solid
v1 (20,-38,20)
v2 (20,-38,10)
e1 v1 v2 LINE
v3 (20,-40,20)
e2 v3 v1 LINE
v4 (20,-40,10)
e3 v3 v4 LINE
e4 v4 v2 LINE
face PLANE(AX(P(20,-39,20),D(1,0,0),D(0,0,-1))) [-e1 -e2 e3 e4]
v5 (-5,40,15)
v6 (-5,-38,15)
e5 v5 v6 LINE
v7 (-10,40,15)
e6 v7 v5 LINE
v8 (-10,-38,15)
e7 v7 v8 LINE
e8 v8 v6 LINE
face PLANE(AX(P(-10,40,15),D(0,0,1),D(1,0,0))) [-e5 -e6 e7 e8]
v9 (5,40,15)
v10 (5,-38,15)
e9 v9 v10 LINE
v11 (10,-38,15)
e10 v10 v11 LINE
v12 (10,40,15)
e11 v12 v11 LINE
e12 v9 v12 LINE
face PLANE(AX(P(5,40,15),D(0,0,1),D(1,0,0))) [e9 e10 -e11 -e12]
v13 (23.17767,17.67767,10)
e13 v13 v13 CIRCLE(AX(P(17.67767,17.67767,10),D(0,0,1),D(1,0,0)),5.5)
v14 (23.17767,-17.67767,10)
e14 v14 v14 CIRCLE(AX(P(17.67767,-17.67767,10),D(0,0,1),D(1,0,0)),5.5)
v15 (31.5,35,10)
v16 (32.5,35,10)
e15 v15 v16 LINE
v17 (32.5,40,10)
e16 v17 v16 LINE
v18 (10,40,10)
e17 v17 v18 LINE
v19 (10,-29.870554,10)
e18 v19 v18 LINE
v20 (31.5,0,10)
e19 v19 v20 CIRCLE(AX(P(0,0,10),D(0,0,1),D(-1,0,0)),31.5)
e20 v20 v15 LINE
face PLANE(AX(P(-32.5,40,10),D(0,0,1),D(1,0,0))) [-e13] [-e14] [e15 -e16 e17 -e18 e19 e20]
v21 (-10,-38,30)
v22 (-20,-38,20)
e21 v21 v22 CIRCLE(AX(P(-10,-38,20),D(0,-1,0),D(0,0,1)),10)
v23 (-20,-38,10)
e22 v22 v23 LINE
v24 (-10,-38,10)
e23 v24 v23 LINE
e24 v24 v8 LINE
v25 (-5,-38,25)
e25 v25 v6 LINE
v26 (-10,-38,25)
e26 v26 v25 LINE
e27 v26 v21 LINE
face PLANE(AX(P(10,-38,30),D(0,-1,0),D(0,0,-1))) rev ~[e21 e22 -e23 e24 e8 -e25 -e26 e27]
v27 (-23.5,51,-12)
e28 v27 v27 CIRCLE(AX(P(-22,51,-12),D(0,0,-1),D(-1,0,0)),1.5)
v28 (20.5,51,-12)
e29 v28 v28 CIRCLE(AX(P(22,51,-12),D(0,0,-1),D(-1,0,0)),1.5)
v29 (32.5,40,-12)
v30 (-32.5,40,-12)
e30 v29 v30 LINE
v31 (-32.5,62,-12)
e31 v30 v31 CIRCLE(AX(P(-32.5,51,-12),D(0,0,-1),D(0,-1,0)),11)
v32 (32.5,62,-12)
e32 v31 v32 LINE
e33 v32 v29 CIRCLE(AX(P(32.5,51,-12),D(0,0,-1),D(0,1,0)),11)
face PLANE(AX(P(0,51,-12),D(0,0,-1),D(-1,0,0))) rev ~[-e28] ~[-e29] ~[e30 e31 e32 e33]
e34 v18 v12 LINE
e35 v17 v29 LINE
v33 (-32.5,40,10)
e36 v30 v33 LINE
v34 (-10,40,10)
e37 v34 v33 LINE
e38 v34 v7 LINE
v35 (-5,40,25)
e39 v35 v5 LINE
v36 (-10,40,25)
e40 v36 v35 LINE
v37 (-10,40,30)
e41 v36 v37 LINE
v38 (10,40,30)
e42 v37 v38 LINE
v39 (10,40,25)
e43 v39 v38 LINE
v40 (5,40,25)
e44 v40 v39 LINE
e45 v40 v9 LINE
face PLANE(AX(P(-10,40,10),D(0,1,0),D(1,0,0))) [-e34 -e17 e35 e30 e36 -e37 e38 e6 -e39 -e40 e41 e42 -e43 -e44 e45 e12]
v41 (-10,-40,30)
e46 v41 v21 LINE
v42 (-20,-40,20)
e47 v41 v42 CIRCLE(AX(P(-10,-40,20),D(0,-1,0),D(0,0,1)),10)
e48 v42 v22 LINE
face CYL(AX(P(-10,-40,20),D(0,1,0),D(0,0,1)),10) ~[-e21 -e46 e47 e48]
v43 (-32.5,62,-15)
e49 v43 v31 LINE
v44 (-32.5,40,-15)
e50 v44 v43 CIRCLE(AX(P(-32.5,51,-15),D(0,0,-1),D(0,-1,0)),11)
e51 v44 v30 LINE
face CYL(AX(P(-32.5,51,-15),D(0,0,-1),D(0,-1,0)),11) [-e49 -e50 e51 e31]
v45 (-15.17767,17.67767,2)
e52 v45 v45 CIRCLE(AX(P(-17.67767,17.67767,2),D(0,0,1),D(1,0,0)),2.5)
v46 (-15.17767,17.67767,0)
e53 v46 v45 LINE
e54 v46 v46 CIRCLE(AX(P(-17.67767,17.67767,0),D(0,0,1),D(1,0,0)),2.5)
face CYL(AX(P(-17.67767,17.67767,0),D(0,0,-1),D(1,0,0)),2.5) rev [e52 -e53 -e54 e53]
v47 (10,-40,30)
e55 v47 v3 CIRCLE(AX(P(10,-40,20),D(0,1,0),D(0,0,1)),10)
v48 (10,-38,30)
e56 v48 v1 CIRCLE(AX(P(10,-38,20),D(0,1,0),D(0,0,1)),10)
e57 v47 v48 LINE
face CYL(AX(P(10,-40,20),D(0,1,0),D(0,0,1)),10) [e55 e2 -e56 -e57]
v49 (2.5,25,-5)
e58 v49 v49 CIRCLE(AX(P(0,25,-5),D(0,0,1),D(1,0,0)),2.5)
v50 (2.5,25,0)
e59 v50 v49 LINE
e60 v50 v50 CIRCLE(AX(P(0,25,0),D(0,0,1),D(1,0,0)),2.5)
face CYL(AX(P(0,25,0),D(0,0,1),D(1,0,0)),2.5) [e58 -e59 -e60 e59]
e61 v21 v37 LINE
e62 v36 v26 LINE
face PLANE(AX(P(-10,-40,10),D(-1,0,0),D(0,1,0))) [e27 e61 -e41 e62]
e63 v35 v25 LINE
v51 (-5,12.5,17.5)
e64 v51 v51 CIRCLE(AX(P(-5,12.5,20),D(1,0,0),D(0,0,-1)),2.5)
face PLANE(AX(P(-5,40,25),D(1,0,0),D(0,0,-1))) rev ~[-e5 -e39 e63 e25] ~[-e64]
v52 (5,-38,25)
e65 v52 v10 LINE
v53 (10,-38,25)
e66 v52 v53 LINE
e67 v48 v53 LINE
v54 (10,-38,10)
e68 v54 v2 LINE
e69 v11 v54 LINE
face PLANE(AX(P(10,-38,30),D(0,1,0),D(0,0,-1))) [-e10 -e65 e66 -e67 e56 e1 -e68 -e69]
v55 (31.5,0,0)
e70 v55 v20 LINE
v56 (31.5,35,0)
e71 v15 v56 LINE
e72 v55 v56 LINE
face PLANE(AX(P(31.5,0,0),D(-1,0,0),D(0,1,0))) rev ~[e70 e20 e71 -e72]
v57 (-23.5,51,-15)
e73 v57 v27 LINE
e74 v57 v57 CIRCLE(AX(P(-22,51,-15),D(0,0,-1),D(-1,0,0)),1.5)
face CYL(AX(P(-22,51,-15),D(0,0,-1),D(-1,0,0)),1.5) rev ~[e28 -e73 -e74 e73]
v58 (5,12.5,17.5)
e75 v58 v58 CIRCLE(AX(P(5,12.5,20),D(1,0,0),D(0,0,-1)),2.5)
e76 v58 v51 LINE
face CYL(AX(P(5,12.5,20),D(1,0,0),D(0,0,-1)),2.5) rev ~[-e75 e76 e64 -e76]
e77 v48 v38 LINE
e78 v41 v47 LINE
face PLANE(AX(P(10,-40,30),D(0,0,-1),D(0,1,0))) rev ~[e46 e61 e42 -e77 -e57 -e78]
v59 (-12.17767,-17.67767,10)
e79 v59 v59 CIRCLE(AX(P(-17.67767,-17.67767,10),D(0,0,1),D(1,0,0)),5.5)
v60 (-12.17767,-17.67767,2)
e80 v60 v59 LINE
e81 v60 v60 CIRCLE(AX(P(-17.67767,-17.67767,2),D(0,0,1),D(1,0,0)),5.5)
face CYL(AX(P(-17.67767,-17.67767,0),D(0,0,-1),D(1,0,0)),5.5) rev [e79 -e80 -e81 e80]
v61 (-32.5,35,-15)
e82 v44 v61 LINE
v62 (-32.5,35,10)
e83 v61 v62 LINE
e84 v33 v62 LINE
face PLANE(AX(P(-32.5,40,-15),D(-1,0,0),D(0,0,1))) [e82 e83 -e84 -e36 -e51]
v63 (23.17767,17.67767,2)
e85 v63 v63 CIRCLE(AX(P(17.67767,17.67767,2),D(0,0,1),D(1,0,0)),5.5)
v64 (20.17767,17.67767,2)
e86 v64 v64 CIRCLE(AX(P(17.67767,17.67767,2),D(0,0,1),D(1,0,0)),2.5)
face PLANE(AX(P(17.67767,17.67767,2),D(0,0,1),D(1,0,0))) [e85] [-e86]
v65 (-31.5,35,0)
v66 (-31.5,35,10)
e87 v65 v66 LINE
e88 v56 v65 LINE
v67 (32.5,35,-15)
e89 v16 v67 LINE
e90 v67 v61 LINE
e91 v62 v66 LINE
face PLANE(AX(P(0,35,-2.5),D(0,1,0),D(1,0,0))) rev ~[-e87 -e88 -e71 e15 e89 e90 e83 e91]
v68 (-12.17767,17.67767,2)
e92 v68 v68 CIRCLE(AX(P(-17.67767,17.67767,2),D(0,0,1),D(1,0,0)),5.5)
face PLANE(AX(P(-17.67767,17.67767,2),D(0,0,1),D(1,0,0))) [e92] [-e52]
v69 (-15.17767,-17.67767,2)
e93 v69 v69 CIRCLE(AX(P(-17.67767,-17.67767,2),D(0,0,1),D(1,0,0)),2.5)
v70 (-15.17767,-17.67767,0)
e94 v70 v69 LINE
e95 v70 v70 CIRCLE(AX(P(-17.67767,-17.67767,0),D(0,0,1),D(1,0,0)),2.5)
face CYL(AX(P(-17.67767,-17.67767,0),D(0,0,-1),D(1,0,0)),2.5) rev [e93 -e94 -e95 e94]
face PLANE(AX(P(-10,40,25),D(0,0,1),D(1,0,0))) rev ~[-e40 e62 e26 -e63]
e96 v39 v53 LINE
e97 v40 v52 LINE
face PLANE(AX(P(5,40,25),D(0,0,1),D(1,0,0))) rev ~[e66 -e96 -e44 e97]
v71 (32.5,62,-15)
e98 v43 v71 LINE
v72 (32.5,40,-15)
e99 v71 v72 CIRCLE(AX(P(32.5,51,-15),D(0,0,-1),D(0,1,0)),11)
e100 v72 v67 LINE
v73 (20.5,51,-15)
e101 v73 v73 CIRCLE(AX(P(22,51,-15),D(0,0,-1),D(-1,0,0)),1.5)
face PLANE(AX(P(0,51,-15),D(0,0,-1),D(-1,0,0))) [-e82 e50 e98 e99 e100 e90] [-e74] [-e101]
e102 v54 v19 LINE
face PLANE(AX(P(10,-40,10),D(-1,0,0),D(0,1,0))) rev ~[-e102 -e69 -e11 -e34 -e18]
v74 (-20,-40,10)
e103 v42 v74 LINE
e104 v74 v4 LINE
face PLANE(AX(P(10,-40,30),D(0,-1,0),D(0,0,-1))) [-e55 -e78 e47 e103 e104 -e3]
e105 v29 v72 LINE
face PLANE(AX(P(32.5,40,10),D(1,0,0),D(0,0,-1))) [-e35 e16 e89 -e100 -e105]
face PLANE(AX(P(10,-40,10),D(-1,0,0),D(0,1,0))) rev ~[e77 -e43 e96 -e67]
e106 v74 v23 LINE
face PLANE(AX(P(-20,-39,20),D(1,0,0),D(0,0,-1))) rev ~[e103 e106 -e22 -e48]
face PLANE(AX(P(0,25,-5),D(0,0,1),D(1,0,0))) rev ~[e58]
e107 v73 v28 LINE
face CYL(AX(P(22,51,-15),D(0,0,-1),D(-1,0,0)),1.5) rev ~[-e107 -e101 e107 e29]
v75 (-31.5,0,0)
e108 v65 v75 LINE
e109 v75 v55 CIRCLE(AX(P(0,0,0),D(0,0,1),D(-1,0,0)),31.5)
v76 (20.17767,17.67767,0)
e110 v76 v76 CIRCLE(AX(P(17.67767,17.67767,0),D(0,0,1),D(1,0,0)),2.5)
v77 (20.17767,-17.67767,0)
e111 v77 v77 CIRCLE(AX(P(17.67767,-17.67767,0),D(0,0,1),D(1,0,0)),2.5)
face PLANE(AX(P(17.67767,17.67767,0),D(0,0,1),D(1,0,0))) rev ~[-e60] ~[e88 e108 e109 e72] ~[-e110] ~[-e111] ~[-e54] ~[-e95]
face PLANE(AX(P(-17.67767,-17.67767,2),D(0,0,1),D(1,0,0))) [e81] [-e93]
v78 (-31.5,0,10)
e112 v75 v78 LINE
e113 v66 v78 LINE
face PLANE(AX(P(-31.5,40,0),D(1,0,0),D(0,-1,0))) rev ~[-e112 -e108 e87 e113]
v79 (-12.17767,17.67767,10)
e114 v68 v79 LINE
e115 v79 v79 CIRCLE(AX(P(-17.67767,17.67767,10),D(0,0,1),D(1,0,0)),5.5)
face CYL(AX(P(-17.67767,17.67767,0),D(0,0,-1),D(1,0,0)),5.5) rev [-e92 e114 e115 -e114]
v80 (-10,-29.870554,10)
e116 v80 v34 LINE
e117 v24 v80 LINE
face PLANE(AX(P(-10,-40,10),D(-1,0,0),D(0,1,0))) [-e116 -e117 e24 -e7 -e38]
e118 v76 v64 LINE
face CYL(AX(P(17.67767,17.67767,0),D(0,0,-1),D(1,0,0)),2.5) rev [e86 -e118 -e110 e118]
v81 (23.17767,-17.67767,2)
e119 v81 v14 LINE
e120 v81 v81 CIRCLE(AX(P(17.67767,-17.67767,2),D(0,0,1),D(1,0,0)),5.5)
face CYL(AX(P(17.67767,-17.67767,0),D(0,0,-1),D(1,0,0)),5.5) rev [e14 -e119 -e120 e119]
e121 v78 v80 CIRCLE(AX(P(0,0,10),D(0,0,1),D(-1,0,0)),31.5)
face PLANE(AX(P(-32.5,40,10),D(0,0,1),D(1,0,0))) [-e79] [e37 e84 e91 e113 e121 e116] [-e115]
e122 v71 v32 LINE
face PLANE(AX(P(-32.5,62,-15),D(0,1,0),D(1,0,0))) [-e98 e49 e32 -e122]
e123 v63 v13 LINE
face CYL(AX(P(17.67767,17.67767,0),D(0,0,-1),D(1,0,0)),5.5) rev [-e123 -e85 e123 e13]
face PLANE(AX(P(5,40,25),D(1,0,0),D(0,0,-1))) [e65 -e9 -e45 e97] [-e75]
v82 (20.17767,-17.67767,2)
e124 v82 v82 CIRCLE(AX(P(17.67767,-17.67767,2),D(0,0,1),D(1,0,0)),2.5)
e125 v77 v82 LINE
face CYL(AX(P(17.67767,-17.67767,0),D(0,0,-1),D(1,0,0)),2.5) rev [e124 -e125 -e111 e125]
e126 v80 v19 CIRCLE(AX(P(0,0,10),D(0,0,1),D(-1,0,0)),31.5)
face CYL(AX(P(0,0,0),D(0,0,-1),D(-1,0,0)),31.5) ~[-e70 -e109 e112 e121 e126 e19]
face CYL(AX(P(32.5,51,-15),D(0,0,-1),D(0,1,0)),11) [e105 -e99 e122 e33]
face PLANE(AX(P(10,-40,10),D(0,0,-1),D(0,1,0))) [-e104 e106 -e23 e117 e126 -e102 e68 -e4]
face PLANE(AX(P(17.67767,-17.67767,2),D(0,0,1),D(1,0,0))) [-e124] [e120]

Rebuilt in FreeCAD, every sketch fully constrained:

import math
import FreeCAD as App
import Part
import Sketcher


def edges_at(feature, points):
    """Names of the edges that pass closest to the given points."""
    edges = feature.Shape.Edges
    near = lambda p: min(range(len(edges)), key=lambda i: edges[i].distToShape(Part.Vertex(*p))[0])
    return sorted({f"Edge{near(p) + 1}" for p in points})


def add_polygon(sketch, points):
    """Adds a closed chain of lines whose ends are joined by coincident constraints."""
    first, n = sketch.GeometryCount, len(points)
    for a, b in zip(points, points[1:] + points[:1]):
        sketch.addGeometry(Part.LineSegment(App.Vector(*a, 0), App.Vector(*b, 0)), False)
    for i in range(n):
        sketch.addConstraint(Sketcher.Constraint("Coincident", first + i, 2, first + (i + 1) % n, 1))

doc = App.newDocument("Part")
body = doc.addObject("PartDesign::Body", "Body")

sketch1 = body.newObject("Sketcher::SketchObject", "Sketch")
sketch1.AttachmentSupport = (doc.getObject("XY_Plane"), [""])
sketch1.MapMode = "FlatFace"
sketch1.addGeometry(Part.LineSegment(App.Vector(31.5, 0, 0), App.Vector(31.5, 40, 0)), False)
sketch1.addGeometry(Part.LineSegment(App.Vector(31.5, 40, 0), App.Vector(-31.5, 40, 0)), False)
sketch1.addGeometry(Part.LineSegment(App.Vector(-31.5, 40, 0), App.Vector(-31.5, 0, 0)), False)
sketch1.addGeometry(Part.ArcOfCircle(Part.Circle(App.Vector(0, 0, 0), App.Vector(0, 0, 1), 31.5), math.radians(180), math.radians(360)), False)
sketch1.addGeometry(Part.Circle(App.Vector(-17.67767, -17.67767, 0), App.Vector(0, 0, 1), 5.5), False)
sketch1.addGeometry(Part.Circle(App.Vector(17.67767, -17.67767, 0), App.Vector(0, 0, 1), 5.5), False)
sketch1.addGeometry(Part.Circle(App.Vector(-17.67767, 17.67767, 0), App.Vector(0, 0, 1), 5.5), False)
sketch1.addGeometry(Part.Circle(App.Vector(17.67767, 17.67767, 0), App.Vector(0, 0, 1), 5.5), False)
sketch1.addConstraint(Sketcher.Constraint("Coincident", 0, 2, 1, 1))
sketch1.addConstraint(Sketcher.Constraint("Coincident", 1, 2, 2, 1))
sketch1.addConstraint(Sketcher.Constraint("Tangent", 2, 2, 3, 1))
sketch1.addConstraint(Sketcher.Constraint("Tangent", 3, 2, 0, 1))
sketch1.addConstraint(Sketcher.Constraint("Vertical", 0))
sketch1.addConstraint(Sketcher.Constraint("Horizontal", 1))
sketch1.addConstraint(Sketcher.Constraint("Vertical", 2))
sketch1.addConstraint(Sketcher.Constraint("Coincident", 3, 3, -1, 1))
sketch1.addConstraint(Sketcher.Constraint("Equal", 4, 5))
sketch1.addConstraint(Sketcher.Constraint("Equal", 5, 6))
sketch1.addConstraint(Sketcher.Constraint("Equal", 6, 7))
sketch1.addConstraint(Sketcher.Constraint("Symmetric", 5, 3, 6, 3, -1, 1))
sketch1.addConstraint(Sketcher.Constraint("Symmetric", 4, 3, 7, 3, -1, 1))
sketch1.addConstraint(Sketcher.Constraint("Symmetric", 4, 3, 5, 3, -2))
sketch1.addConstraint(Sketcher.Constraint("Diameter", 4, 11.0))
sketch1.addConstraint(Sketcher.Constraint("Radius", 3, 31.5))
sketch1.addConstraint(Sketcher.Constraint("DistanceY", 0, 1, 0, 2, 40.0))
sketch1.addConstraint(Sketcher.Constraint("DistanceX", 4, 3, -1, 1, 17.67767))
sketch1.addConstraint(Sketcher.Constraint("DistanceY", 4, 3, -1, 1, 17.67767))
pad1 = body.newObject("PartDesign::Pad", "Pad")
pad1.Profile = sketch1
pad1.Length = 10

sketch2 = body.newObject("Sketcher::SketchObject", "Sketch001")
sketch2.AttachmentSupport = (doc.getObject("XY_Plane"), [""])
sketch2.MapMode = "FlatFace"
sketch2.addGeometry(Part.Circle(App.Vector(17.67767, 17.67767, 0), App.Vector(0, 0, 1), 5.5), False)
sketch2.addGeometry(Part.Circle(App.Vector(17.67767, 17.67767, 0), App.Vector(0, 0, 1), 2.5), False)
sketch2.addGeometry(Part.Circle(App.Vector(17.67767, -17.67767, 0), App.Vector(0, 0, 1), 5.5), False)
sketch2.addGeometry(Part.Circle(App.Vector(17.67767, -17.67767, 0), App.Vector(0, 0, 1), 2.5), False)
sketch2.addGeometry(Part.Circle(App.Vector(-17.67767, -17.67767, 0), App.Vector(0, 0, 1), 5.5), False)
sketch2.addGeometry(Part.Circle(App.Vector(-17.67767, -17.67767, 0), App.Vector(0, 0, 1), 2.5), False)
sketch2.addGeometry(Part.Circle(App.Vector(-17.67767, 17.67767, 0), App.Vector(0, 0, 1), 5.5), False)
sketch2.addGeometry(Part.Circle(App.Vector(-17.67767, 17.67767, 0), App.Vector(0, 0, 1), 2.5), False)
sketch2.addConstraint(Sketcher.Constraint("Coincident", 1, 3, 0, 3))
sketch2.addConstraint(Sketcher.Constraint("Coincident", 3, 3, 2, 3))
sketch2.addConstraint(Sketcher.Constraint("Coincident", 5, 3, 4, 3))
sketch2.addConstraint(Sketcher.Constraint("Coincident", 7, 3, 6, 3))
sketch2.addConstraint(Sketcher.Constraint("Equal", 0, 2))
sketch2.addConstraint(Sketcher.Constraint("Equal", 1, 3))
sketch2.addConstraint(Sketcher.Constraint("Equal", 2, 4))
sketch2.addConstraint(Sketcher.Constraint("Equal", 3, 5))
sketch2.addConstraint(Sketcher.Constraint("Equal", 4, 6))
sketch2.addConstraint(Sketcher.Constraint("Equal", 5, 7))
sketch2.addConstraint(Sketcher.Constraint("Symmetric", 0, 3, 4, 3, -1, 1))
sketch2.addConstraint(Sketcher.Constraint("Symmetric", 2, 3, 6, 3, -1, 1))
sketch2.addConstraint(Sketcher.Constraint("Symmetric", 2, 3, 4, 3, -2))
sketch2.addConstraint(Sketcher.Constraint("Diameter", 0, 11.0))
sketch2.addConstraint(Sketcher.Constraint("Diameter", 1, 5.0))
sketch2.addConstraint(Sketcher.Constraint("DistanceX", -1, 1, 0, 3, 17.67767))
sketch2.addConstraint(Sketcher.Constraint("DistanceY", -1, 1, 0, 3, 17.67767))
pad2 = body.newObject("PartDesign::Pad", "Pad001")
pad2.Profile = sketch2
pad2.Length = 2

sketch3 = body.newObject("Sketcher::SketchObject", "Sketch002")
sketch3.AttachmentSupport = (doc.getObject("XY_Plane"), [""])
sketch3.MapMode = "FlatFace"
sketch3.addGeometry(Part.Circle(App.Vector(0, 25, 0), App.Vector(0, 0, 1), 2.5), False)
sketch3.addConstraint(Sketcher.Constraint("PointOnObject", 0, 3, -2))
sketch3.addConstraint(Sketcher.Constraint("Diameter", 0, 5.0))
sketch3.addConstraint(Sketcher.Constraint("DistanceY", -1, 1, 0, 3, 25.0))
pad3 = body.newObject("PartDesign::Pad", "Pad002")
pad3.Profile = sketch3
pad3.Length = 5
pad3.Reversed = True

sketch4 = body.newObject("Sketcher::SketchObject", "Sketch003")
sketch4.AttachmentSupport = (doc.getObject("XZ_Plane"), [""])
sketch4.MapMode = "FlatFace"
sketch4.AttachmentOffset = App.Placement(App.Vector(0, 0, -40), App.Rotation())
add_polygon(sketch4, [(-32.5, 10), (32.5, 10), (32.5, -15), (-32.5, -15)])
sketch4.addConstraint(Sketcher.Constraint("Horizontal", 0))
sketch4.addConstraint(Sketcher.Constraint("Vertical", 1))
sketch4.addConstraint(Sketcher.Constraint("Horizontal", 2))
sketch4.addConstraint(Sketcher.Constraint("Vertical", 3))
sketch4.addConstraint(Sketcher.Constraint("DistanceX", 0, 1, 0, 2, 65.0))
sketch4.addConstraint(Sketcher.Constraint("DistanceY", 1, 2, 1, 1, 25.0))
sketch4.addConstraint(Sketcher.Constraint("DistanceY", -1, 1, 0, 2, 10.0))
sketch4.addConstraint(Sketcher.Constraint("DistanceX", -1, 1, 0, 2, 32.5))
pad4 = body.newObject("PartDesign::Pad", "Pad003")
pad4.Profile = sketch4
pad4.Length = 5

sketch5 = body.newObject("Sketcher::SketchObject", "Sketch004")
sketch5.AttachmentSupport = (doc.getObject("XY_Plane"), [""])
sketch5.MapMode = "FlatFace"
sketch5.AttachmentOffset = App.Placement(App.Vector(0, 0, 10), App.Rotation())
add_polygon(sketch5, [(-10, 40), (-10, -40), (10, -40), (10, 40)])
sketch5.addConstraint(Sketcher.Constraint("Vertical", 0))
sketch5.addConstraint(Sketcher.Constraint("Horizontal", 1))
sketch5.addConstraint(Sketcher.Constraint("Vertical", 2))
sketch5.addConstraint(Sketcher.Constraint("Horizontal", 3))
sketch5.addConstraint(Sketcher.Constraint("Symmetric", 0, 2, 2, 2, -1, 1))
sketch5.addConstraint(Sketcher.Constraint("DistanceX", 1, 1, 1, 2, 20.0))
sketch5.addConstraint(Sketcher.Constraint("DistanceY", 0, 2, 0, 1, 80.0))
pad5 = body.newObject("PartDesign::Pad", "Pad004")
pad5.Profile = sketch5
pad5.Length = 20

sketch6 = body.newObject("Sketcher::SketchObject", "Sketch005")
sketch6.AttachmentSupport = (doc.getObject("YZ_Plane"), [""])
sketch6.MapMode = "FlatFace"
sketch6.AttachmentOffset = App.Placement(App.Vector(0, 0, 10), App.Rotation())
add_polygon(sketch6, [(-38, 30), (-40, 30), (-40, 10), (-38, 10)])
sketch6.addConstraint(Sketcher.Constraint("Horizontal", 0))
sketch6.addConstraint(Sketcher.Constraint("Vertical", 1))
sketch6.addConstraint(Sketcher.Constraint("Horizontal", 2))
sketch6.addConstraint(Sketcher.Constraint("Vertical", 3))
sketch6.addConstraint(Sketcher.Constraint("DistanceX", 0, 2, 0, 1, 2.0))
sketch6.addConstraint(Sketcher.Constraint("DistanceY", 1, 2, 1, 1, 20.0))
sketch6.addConstraint(Sketcher.Constraint("DistanceX", 0, 2, -1, 1, 40.0))
sketch6.addConstraint(Sketcher.Constraint("DistanceY", -1, 1, 0, 2, 30.0))
pad6 = body.newObject("PartDesign::Pad", "Pad005")
pad6.Profile = sketch6
pad6.Type = "TwoLengths"
pad6.Length = 10
pad6.Length2 = 30

sketch7 = body.newObject("Sketcher::SketchObject", "Sketch006")
sketch7.AttachmentSupport = (doc.getObject("XZ_Plane"), [""])
sketch7.MapMode = "FlatFace"
sketch7.AttachmentOffset = App.Placement(App.Vector(0, 0, -40), App.Rotation())
add_polygon(sketch7, [(-10, 15), (-10, 25), (-5, 25), (-5, 15)])
add_polygon(sketch7, [(5, 15), (5, 25), (10, 25), (10, 15)])
sketch7.addConstraint(Sketcher.Constraint("Vertical", 0))
sketch7.addConstraint(Sketcher.Constraint("Horizontal", 1))
sketch7.addConstraint(Sketcher.Constraint("Vertical", 2))
sketch7.addConstraint(Sketcher.Constraint("Horizontal", 3))
sketch7.addConstraint(Sketcher.Constraint("Vertical", 4))
sketch7.addConstraint(Sketcher.Constraint("Horizontal", 5))
sketch7.addConstraint(Sketcher.Constraint("Vertical", 6))
sketch7.addConstraint(Sketcher.Constraint("Horizontal", 7))
sketch7.addConstraint(Sketcher.Constraint("Symmetric", 1, 2, 4, 2, -2))
sketch7.addConstraint(Sketcher.Constraint("Symmetric", 3, 2, 6, 2, -2))
sketch7.addConstraint(Sketcher.Constraint("DistanceX", 1, 1, 1, 2, 5.0))
sketch7.addConstraint(Sketcher.Constraint("DistanceY", 0, 1, 0, 2, 10.0))
sketch7.addConstraint(Sketcher.Constraint("DistanceX", 0, 2, -1, 1, 10.0))
sketch7.addConstraint(Sketcher.Constraint("DistanceY", -1, 1, 0, 2, 25.0))
pocket1 = body.newObject("PartDesign::Pocket", "Pocket")
pocket1.Profile = sketch7
pocket1.Length = 78
pocket1.Reversed = True
doc.recompute()

fillet = body.newObject("PartDesign::Fillet", "Fillet")
fillet.Base = (pocket1, edges_at(pocket1, [(-20, -39, 30), (20, -39, 30)]))
fillet.Radius = 10

sketch8 = body.newObject("Sketcher::SketchObject", "Sketch007")
sketch8.AttachmentSupport = (doc.getObject("YZ_Plane"), [""])
sketch8.MapMode = "FlatFace"
sketch8.AttachmentOffset = App.Placement(App.Vector(0, 0, 5), App.Rotation())
sketch8.addGeometry(Part.Circle(App.Vector(12.5, 20, 0), App.Vector(0, 0, 1), 2.5), False)
sketch8.addConstraint(Sketcher.Constraint("Diameter", 0, 5.0))
sketch8.addConstraint(Sketcher.Constraint("DistanceY", -1, 1, 0, 3, 20.0))
sketch8.addConstraint(Sketcher.Constraint("DistanceX", -1, 1, 0, 3, 12.5))
pocket2 = body.newObject("PartDesign::Pocket", "Pocket001")
pocket2.Profile = sketch8
pocket2.Type = "ThroughAll"

sketch9 = body.newObject("Sketcher::SketchObject", "Sketch008")
sketch9.AttachmentSupport = (doc.getObject("XY_Plane"), [""])
sketch9.MapMode = "FlatFace"
sketch9.AttachmentOffset = App.Placement(App.Vector(0, 0, -15), App.Rotation())
sketch9.addGeometry(Part.LineSegment(App.Vector(-32.5, 62, 0), App.Vector(32.5, 62, 0)), False)
sketch9.addGeometry(Part.ArcOfCircle(Part.Circle(App.Vector(32.5, 51, 0), App.Vector(0, 0, 1), 11), math.radians(-90), math.radians(90)), False)
sketch9.addGeometry(Part.LineSegment(App.Vector(32.5, 40, 0), App.Vector(-32.5, 40, 0)), False)
sketch9.addGeometry(Part.ArcOfCircle(Part.Circle(App.Vector(-32.5, 51, 0), App.Vector(0, 0, 1), 11), math.radians(90), math.radians(270)), False)
sketch9.addGeometry(Part.Circle(App.Vector(22, 51, 0), App.Vector(0, 0, 1), 1.5), False)
sketch9.addGeometry(Part.Circle(App.Vector(-22, 51, 0), App.Vector(0, 0, 1), 1.5), False)
sketch9.addConstraint(Sketcher.Constraint("Tangent", 0, 2, 1, 2))
sketch9.addConstraint(Sketcher.Constraint("Tangent", 1, 1, 2, 1))
sketch9.addConstraint(Sketcher.Constraint("Tangent", 2, 2, 3, 2))
sketch9.addConstraint(Sketcher.Constraint("Tangent", 3, 1, 0, 1))
sketch9.addConstraint(Sketcher.Constraint("Horizontal", 0))
sketch9.addConstraint(Sketcher.Constraint("Horizontal", 2))
sketch9.addConstraint(Sketcher.Constraint("Equal", 4, 5))
sketch9.addConstraint(Sketcher.Constraint("Symmetric", 4, 3, 5, 3, -2))
sketch9.addConstraint(Sketcher.Constraint("Horizontal", 3, 3, 4, 3))
sketch9.addConstraint(Sketcher.Constraint("Diameter", 4, 3.0))
sketch9.addConstraint(Sketcher.Constraint("Radius", 1, 11.0))
sketch9.addConstraint(Sketcher.Constraint("DistanceX", 0, 1, 0, 2, 65.0))
sketch9.addConstraint(Sketcher.Constraint("DistanceY", -1, 1, 1, 3, 51.0))
sketch9.addConstraint(Sketcher.Constraint("DistanceX", -1, 1, 4, 3, 22.0))
sketch9.addConstraint(Sketcher.Constraint("DistanceX", -1, 1, 1, 3, 32.5))
pad7 = body.newObject("PartDesign::Pad", "Pad006")
pad7.Profile = sketch9
pad7.Length = 3

doc.recompute()
